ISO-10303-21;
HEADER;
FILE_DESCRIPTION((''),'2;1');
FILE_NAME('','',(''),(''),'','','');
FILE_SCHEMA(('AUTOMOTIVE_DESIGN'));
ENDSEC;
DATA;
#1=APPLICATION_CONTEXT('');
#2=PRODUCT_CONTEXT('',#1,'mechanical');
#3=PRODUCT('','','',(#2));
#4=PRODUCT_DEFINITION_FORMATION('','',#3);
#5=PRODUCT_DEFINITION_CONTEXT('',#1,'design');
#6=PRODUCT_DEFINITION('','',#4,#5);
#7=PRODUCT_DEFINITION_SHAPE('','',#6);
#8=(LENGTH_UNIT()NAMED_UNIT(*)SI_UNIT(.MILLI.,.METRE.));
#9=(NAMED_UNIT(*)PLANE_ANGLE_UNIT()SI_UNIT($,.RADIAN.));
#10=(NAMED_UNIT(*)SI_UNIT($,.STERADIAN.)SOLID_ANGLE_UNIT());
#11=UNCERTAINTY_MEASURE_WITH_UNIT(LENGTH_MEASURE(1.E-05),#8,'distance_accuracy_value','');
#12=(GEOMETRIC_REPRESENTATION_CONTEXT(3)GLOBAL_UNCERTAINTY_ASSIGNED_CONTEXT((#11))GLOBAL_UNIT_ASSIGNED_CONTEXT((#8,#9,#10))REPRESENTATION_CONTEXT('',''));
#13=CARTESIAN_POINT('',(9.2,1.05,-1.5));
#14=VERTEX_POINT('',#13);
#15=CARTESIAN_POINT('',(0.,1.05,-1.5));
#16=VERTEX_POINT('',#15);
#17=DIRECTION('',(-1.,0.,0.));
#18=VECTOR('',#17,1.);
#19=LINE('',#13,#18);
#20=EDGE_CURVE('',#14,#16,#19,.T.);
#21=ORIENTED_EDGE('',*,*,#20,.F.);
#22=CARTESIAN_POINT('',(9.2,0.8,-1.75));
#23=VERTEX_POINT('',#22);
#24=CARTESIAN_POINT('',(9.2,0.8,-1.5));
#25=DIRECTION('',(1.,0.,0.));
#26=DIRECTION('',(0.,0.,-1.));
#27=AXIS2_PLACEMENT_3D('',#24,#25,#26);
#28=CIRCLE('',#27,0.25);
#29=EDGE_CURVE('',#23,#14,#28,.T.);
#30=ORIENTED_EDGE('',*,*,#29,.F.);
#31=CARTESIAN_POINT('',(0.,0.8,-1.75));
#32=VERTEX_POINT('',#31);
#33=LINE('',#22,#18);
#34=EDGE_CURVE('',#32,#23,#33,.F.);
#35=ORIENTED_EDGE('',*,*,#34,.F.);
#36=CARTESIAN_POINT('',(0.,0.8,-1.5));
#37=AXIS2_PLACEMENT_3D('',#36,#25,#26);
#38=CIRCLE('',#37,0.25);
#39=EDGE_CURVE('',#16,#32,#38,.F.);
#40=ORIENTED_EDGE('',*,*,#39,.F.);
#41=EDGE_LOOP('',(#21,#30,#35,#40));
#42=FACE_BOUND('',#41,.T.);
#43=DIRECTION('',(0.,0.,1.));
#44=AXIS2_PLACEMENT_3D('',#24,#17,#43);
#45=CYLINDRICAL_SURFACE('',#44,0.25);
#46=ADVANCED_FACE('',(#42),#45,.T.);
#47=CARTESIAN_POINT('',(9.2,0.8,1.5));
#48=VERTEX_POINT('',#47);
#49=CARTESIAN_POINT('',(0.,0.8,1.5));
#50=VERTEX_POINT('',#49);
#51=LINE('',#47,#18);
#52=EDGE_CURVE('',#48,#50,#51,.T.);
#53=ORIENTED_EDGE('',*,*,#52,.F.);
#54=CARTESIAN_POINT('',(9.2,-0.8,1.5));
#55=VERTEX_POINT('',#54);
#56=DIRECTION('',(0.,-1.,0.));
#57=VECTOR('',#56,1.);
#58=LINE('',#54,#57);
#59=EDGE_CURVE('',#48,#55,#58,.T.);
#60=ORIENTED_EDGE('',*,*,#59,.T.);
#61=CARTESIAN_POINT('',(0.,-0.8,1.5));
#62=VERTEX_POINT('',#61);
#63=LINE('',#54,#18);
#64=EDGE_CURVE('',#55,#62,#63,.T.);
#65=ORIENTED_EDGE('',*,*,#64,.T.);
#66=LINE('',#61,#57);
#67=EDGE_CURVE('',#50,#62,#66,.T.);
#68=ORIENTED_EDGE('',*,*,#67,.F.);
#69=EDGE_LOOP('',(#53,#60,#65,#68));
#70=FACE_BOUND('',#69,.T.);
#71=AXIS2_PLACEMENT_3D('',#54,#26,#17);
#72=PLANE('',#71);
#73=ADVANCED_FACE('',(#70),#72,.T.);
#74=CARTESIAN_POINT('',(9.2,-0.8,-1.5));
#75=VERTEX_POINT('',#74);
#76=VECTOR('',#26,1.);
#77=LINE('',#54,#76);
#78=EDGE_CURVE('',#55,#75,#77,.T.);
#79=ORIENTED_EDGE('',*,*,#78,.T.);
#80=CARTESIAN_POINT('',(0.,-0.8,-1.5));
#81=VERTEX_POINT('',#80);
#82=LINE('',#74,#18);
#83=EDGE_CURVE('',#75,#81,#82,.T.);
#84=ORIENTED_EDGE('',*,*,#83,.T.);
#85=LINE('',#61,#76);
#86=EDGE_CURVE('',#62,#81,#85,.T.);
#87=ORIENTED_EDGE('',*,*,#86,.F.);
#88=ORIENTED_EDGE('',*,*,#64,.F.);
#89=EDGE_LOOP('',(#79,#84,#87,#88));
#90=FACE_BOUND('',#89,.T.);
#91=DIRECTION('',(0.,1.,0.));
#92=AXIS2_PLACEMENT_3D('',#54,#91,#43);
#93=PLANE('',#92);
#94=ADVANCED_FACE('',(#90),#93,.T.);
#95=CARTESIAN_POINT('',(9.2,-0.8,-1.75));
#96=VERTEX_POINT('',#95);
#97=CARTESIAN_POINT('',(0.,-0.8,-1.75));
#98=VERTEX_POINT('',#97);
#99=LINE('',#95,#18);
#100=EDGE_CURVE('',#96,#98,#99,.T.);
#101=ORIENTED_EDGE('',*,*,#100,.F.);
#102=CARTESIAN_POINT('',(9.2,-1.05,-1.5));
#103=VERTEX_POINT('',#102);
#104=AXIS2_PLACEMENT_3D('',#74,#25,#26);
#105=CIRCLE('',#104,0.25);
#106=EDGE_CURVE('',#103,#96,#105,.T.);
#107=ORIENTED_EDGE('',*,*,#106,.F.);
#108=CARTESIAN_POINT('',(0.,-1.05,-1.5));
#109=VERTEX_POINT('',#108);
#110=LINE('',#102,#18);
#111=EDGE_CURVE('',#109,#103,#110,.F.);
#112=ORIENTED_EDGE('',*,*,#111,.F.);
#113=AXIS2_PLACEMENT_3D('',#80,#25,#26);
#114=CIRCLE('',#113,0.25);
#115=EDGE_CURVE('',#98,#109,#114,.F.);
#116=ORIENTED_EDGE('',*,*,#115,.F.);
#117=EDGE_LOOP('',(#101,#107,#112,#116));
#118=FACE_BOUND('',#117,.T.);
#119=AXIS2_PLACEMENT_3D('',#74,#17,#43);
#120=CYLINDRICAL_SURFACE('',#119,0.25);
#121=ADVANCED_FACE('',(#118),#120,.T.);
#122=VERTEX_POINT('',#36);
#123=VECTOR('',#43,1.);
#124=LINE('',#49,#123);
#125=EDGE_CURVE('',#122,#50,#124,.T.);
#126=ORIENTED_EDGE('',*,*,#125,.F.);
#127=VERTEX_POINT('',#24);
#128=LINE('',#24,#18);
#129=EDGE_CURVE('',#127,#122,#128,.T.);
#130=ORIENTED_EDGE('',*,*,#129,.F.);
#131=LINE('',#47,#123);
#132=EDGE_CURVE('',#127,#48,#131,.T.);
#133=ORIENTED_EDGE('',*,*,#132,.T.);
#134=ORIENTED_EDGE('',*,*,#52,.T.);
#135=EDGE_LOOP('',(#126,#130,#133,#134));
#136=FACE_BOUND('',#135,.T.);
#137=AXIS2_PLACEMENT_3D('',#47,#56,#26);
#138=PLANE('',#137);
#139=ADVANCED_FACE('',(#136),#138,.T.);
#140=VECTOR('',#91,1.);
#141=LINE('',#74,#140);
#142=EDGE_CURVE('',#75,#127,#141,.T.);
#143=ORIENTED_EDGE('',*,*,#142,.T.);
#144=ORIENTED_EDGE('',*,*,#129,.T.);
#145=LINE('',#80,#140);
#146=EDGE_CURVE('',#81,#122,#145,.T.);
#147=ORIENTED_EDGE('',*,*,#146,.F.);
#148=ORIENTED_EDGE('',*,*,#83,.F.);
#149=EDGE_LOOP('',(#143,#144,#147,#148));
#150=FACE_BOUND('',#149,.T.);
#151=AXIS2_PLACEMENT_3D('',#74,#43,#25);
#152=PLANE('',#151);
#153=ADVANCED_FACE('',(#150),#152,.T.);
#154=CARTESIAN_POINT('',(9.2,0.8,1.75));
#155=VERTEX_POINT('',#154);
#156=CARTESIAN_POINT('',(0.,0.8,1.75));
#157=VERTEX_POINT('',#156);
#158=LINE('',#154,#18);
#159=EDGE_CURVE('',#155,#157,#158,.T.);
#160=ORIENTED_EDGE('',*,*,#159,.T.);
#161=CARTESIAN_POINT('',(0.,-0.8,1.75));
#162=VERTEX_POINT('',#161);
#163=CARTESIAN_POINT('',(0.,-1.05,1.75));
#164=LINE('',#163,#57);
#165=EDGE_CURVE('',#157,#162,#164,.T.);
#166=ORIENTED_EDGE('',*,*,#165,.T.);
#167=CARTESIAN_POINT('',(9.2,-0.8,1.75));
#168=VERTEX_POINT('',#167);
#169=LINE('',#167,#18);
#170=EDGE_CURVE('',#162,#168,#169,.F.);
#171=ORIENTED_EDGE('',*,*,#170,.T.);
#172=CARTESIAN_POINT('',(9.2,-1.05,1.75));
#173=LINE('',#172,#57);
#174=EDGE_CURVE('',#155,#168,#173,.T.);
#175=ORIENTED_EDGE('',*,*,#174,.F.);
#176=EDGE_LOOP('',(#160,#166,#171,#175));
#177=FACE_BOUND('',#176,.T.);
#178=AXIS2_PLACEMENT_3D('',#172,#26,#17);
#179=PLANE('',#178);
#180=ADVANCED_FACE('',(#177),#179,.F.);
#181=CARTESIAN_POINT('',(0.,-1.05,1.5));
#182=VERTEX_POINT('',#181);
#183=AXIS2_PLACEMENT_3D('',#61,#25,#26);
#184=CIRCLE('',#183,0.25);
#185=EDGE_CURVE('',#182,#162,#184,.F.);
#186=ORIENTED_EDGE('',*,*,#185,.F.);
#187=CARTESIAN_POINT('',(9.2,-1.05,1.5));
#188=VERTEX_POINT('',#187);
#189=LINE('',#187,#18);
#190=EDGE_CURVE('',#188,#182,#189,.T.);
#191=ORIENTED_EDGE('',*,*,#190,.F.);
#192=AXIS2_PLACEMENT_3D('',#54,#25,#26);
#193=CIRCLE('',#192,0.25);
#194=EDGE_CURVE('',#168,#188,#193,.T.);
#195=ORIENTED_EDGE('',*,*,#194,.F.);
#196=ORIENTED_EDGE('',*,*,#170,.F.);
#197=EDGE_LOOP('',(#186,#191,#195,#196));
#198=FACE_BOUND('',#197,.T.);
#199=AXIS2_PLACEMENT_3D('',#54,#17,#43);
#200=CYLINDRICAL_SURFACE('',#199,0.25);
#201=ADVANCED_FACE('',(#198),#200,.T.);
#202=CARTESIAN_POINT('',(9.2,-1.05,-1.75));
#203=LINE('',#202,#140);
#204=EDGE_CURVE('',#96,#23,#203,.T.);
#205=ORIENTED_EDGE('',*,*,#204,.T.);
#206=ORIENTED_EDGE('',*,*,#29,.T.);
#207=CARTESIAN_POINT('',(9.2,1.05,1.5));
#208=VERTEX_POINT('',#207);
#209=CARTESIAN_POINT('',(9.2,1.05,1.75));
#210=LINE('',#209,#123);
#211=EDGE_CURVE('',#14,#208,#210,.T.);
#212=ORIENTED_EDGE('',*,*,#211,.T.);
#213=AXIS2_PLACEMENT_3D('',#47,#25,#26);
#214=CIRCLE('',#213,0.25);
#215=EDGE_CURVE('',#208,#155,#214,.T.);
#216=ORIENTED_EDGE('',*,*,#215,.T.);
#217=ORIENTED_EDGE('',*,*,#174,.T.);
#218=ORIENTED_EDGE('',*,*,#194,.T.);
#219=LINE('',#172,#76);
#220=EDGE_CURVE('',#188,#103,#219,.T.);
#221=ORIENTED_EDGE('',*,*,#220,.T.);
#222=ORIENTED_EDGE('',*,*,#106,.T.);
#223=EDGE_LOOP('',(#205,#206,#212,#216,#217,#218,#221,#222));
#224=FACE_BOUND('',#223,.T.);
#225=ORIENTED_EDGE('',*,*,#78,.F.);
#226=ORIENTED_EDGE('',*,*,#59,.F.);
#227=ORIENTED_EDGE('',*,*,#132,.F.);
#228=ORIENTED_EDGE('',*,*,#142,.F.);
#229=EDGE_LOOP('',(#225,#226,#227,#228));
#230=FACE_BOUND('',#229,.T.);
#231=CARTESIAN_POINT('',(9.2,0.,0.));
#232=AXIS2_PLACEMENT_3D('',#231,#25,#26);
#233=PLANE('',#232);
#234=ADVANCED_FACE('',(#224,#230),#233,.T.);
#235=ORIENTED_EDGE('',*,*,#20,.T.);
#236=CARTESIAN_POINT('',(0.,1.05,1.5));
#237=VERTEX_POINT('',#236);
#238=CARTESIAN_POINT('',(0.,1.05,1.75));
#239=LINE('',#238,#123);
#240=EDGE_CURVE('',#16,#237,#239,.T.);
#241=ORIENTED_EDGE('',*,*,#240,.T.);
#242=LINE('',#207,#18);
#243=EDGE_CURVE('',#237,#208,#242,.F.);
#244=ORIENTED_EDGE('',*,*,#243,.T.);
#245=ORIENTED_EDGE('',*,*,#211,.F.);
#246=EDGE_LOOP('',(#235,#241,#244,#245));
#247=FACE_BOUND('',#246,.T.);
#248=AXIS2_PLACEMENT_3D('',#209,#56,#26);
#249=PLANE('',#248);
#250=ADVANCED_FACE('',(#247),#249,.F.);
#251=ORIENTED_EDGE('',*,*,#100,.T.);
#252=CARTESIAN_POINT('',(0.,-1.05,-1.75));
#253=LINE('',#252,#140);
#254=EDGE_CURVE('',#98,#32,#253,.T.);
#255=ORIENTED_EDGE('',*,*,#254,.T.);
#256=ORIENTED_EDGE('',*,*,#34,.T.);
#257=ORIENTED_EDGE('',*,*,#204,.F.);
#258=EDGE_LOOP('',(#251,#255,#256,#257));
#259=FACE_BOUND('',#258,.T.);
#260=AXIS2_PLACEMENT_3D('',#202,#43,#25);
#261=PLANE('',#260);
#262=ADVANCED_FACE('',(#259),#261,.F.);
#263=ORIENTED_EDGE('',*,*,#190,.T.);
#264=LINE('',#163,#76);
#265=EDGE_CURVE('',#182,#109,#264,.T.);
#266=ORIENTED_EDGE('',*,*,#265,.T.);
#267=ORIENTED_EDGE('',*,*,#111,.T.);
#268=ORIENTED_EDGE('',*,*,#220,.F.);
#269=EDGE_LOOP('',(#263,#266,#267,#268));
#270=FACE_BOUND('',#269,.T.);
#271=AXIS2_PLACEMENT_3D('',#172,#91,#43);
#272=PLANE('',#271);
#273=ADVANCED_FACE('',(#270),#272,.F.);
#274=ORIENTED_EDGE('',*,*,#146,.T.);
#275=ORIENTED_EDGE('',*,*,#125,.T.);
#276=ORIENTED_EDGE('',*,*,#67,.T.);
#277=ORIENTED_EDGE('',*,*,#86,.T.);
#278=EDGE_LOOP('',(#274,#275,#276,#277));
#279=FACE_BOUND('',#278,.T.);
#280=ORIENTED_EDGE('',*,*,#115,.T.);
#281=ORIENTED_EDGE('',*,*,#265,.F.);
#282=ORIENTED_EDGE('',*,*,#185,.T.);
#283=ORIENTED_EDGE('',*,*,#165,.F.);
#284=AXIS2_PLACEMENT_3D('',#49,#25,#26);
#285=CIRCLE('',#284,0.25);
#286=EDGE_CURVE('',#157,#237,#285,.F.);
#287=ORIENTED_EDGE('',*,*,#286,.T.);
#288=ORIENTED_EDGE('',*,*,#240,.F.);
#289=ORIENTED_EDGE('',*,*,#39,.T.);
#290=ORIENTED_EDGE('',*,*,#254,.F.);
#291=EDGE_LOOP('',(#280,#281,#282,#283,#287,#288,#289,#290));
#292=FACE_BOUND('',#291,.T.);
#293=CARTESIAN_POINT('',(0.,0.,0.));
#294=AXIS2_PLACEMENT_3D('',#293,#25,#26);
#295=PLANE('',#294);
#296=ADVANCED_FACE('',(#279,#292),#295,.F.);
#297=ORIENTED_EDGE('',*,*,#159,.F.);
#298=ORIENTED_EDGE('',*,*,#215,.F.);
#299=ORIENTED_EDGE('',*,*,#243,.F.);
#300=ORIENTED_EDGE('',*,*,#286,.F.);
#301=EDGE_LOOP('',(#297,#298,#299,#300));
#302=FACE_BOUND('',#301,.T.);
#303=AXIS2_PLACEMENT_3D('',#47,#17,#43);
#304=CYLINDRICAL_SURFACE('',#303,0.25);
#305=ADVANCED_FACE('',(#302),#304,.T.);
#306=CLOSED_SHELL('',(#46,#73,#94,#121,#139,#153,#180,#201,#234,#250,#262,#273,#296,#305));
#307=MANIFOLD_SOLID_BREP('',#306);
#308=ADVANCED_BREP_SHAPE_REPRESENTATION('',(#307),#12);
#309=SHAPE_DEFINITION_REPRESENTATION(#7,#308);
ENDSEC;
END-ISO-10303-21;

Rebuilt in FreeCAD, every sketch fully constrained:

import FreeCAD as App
import Part
import Sketcher

V = App.Vector
Q = App.Units.Quantity


def edges_at(feature, points):
    """Names of the edges that pass closest to the given points."""
    edges = feature.Shape.Edges
    near = lambda p: min(range(len(edges)), key=lambda i: edges[i].distToShape(Part.Vertex(*p))[0])
    return sorted({f"Edge{near(p) + 1}" for p in points})

doc = App.newDocument("Part")
body = doc.addObject("PartDesign::Body", "Body")

# Sketch on YZ plane
sketch1 = doc.addObject("Sketcher::SketchObject", "Sketch")
body.addObject(sketch1)
sketch1.AttachmentSupport = (doc.YZ_Plane, [""])
sketch1.MapMode = "FlatFace"
sketch1.addGeometry(Part.LineSegment(V(1.05, 1.75, 0), V(-1.05, 1.75, 0)), False)
sketch1.addGeometry(Part.LineSegment(V(-1.05, 1.75, 0), V(-1.05, -1.75, 0)), False)
sketch1.addGeometry(Part.LineSegment(V(-1.05, -1.75, 0), V(1.05, -1.75, 0)), False)
sketch1.addGeometry(Part.LineSegment(V(1.05, -1.75, 0), V(1.05, 1.75, 0)), False)
sketch1.addGeometry(Part.LineSegment(V(-0.8, -1.5, 0), V(-0.8, 1.5, 0)), False)
sketch1.addGeometry(Part.LineSegment(V(-0.8, 1.5, 0), V(0.8, 1.5, 0)), False)
sketch1.addGeometry(Part.LineSegment(V(0.8, 1.5, 0), V(0.8, -1.5, 0)), False)
sketch1.addGeometry(Part.LineSegment(V(0.8, -1.5, 0), V(-0.8, -1.5, 0)), False)
sketch1.addConstraint(Sketcher.Constraint("Coincident", 0, 2, 1, 1))
sketch1.addConstraint(Sketcher.Constraint("Coincident", 1, 2, 2, 1))
sketch1.addConstraint(Sketcher.Constraint("Coincident", 2, 2, 3, 1))
sketch1.addConstraint(Sketcher.Constraint("Coincident", 3, 2, 0, 1))
sketch1.addConstraint(Sketcher.Constraint("Coincident", 4, 2, 5, 1))
sketch1.addConstraint(Sketcher.Constraint("Coincident", 5, 2, 6, 1))
sketch1.addConstraint(Sketcher.Constraint("Coincident", 6, 2, 7, 1))
sketch1.addConstraint(Sketcher.Constraint("Coincident", 7, 2, 4, 1))
sketch1.addConstraint(Sketcher.Constraint("Horizontal", 0))
sketch1.addConstraint(Sketcher.Constraint("Vertical", 1))
sketch1.addConstraint(Sketcher.Constraint("Horizontal", 2))
sketch1.addConstraint(Sketcher.Constraint("Vertical", 3))
sketch1.addConstraint(Sketcher.Constraint("Vertical", 4))
sketch1.addConstraint(Sketcher.Constraint("Horizontal", 5))
sketch1.addConstraint(Sketcher.Constraint("Vertical", 6))
sketch1.addConstraint(Sketcher.Constraint("Horizontal", 7))
sketch1.addConstraint(Sketcher.Constraint("Symmetric", 0, 2, 2, 2, -1, 1))
sketch1.addConstraint(Sketcher.Constraint("Symmetric", 4, 2, 6, 2, -1, 1))
sketch1.addConstraint(Sketcher.Constraint("DistanceY", 4, 1, 4, 2, Q("3 mm")))
sketch1.addConstraint(Sketcher.Constraint("DistanceX", 0, 2, 0, 1, Q("2.1 mm")))
sketch1.addConstraint(Sketcher.Constraint("DistanceX", 5, 1, 5, 2, Q("1.6 mm")))
sketch1.addConstraint(Sketcher.Constraint("DistanceY", 1, 2, 1, 1, Q("3.5 mm")))
pad1 = doc.addObject("PartDesign::Pad", "Pad")
body.addObject(pad1)
pad1.Profile = sketch1
pad1.Length = 9.2
doc.recompute()

fillet = doc.addObject("PartDesign::Fillet", "Fillet")
body.addObject(fillet)
fillet.Base = (pad1, edges_at(pad1, [
    (4.6, -1.05, 1.75),
    (4.6, 1.05, 1.75),
    (4.6, 1.05, -1.75),
    (4.6, -1.05, -1.75),
]))
fillet.Radius = 0.25

doc.recompute()
